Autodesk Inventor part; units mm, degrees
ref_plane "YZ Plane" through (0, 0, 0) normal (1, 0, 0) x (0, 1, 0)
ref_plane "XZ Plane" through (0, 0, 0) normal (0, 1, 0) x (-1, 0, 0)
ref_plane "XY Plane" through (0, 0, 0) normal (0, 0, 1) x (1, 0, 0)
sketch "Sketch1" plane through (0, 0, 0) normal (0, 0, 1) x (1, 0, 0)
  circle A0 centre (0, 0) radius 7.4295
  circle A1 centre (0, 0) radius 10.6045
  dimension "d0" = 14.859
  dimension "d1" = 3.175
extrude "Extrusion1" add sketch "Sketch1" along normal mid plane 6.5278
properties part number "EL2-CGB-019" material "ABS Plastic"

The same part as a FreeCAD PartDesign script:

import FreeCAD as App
import Part
import Sketcher

V = App.Vector
Q = App.Units.Quantity

doc = App.newDocument("Part")
body = doc.addObject("PartDesign::Body", "Body")

sketch1 = body.newObject("Sketcher::SketchObject", "Sketch")
sketch1.AttachmentSupport = (doc.getObject("XY_Plane"), [""])
sketch1.MapMode = "FlatFace"
sketch1.addGeometry(Part.Circle(V(0, 0, 0), V(0, 0, 1), 10.6045), False)
sketch1.addGeometry(Part.Circle(V(0, 0, 0), V(0, 0, 1), 7.4295), False)
sketch1.addConstraint(Sketcher.Constraint("Coincident", 0, 3, -1, 1))
sketch1.addConstraint(Sketcher.Constraint("Coincident", 1, 3, -1, 1))
sketch1.addConstraint(Sketcher.Constraint("Diameter", 1, Q("0.585 in")))
sketch1.addConstraint(Sketcher.Constraint("Diameter", 0, Q("0.835 in")))
pad1 = body.newObject("PartDesign::Pad", "Pad")
pad1.Profile = sketch1
pad1.Length = Q("0.257 in")
pad1.Midplane = True

doc.recompute()
